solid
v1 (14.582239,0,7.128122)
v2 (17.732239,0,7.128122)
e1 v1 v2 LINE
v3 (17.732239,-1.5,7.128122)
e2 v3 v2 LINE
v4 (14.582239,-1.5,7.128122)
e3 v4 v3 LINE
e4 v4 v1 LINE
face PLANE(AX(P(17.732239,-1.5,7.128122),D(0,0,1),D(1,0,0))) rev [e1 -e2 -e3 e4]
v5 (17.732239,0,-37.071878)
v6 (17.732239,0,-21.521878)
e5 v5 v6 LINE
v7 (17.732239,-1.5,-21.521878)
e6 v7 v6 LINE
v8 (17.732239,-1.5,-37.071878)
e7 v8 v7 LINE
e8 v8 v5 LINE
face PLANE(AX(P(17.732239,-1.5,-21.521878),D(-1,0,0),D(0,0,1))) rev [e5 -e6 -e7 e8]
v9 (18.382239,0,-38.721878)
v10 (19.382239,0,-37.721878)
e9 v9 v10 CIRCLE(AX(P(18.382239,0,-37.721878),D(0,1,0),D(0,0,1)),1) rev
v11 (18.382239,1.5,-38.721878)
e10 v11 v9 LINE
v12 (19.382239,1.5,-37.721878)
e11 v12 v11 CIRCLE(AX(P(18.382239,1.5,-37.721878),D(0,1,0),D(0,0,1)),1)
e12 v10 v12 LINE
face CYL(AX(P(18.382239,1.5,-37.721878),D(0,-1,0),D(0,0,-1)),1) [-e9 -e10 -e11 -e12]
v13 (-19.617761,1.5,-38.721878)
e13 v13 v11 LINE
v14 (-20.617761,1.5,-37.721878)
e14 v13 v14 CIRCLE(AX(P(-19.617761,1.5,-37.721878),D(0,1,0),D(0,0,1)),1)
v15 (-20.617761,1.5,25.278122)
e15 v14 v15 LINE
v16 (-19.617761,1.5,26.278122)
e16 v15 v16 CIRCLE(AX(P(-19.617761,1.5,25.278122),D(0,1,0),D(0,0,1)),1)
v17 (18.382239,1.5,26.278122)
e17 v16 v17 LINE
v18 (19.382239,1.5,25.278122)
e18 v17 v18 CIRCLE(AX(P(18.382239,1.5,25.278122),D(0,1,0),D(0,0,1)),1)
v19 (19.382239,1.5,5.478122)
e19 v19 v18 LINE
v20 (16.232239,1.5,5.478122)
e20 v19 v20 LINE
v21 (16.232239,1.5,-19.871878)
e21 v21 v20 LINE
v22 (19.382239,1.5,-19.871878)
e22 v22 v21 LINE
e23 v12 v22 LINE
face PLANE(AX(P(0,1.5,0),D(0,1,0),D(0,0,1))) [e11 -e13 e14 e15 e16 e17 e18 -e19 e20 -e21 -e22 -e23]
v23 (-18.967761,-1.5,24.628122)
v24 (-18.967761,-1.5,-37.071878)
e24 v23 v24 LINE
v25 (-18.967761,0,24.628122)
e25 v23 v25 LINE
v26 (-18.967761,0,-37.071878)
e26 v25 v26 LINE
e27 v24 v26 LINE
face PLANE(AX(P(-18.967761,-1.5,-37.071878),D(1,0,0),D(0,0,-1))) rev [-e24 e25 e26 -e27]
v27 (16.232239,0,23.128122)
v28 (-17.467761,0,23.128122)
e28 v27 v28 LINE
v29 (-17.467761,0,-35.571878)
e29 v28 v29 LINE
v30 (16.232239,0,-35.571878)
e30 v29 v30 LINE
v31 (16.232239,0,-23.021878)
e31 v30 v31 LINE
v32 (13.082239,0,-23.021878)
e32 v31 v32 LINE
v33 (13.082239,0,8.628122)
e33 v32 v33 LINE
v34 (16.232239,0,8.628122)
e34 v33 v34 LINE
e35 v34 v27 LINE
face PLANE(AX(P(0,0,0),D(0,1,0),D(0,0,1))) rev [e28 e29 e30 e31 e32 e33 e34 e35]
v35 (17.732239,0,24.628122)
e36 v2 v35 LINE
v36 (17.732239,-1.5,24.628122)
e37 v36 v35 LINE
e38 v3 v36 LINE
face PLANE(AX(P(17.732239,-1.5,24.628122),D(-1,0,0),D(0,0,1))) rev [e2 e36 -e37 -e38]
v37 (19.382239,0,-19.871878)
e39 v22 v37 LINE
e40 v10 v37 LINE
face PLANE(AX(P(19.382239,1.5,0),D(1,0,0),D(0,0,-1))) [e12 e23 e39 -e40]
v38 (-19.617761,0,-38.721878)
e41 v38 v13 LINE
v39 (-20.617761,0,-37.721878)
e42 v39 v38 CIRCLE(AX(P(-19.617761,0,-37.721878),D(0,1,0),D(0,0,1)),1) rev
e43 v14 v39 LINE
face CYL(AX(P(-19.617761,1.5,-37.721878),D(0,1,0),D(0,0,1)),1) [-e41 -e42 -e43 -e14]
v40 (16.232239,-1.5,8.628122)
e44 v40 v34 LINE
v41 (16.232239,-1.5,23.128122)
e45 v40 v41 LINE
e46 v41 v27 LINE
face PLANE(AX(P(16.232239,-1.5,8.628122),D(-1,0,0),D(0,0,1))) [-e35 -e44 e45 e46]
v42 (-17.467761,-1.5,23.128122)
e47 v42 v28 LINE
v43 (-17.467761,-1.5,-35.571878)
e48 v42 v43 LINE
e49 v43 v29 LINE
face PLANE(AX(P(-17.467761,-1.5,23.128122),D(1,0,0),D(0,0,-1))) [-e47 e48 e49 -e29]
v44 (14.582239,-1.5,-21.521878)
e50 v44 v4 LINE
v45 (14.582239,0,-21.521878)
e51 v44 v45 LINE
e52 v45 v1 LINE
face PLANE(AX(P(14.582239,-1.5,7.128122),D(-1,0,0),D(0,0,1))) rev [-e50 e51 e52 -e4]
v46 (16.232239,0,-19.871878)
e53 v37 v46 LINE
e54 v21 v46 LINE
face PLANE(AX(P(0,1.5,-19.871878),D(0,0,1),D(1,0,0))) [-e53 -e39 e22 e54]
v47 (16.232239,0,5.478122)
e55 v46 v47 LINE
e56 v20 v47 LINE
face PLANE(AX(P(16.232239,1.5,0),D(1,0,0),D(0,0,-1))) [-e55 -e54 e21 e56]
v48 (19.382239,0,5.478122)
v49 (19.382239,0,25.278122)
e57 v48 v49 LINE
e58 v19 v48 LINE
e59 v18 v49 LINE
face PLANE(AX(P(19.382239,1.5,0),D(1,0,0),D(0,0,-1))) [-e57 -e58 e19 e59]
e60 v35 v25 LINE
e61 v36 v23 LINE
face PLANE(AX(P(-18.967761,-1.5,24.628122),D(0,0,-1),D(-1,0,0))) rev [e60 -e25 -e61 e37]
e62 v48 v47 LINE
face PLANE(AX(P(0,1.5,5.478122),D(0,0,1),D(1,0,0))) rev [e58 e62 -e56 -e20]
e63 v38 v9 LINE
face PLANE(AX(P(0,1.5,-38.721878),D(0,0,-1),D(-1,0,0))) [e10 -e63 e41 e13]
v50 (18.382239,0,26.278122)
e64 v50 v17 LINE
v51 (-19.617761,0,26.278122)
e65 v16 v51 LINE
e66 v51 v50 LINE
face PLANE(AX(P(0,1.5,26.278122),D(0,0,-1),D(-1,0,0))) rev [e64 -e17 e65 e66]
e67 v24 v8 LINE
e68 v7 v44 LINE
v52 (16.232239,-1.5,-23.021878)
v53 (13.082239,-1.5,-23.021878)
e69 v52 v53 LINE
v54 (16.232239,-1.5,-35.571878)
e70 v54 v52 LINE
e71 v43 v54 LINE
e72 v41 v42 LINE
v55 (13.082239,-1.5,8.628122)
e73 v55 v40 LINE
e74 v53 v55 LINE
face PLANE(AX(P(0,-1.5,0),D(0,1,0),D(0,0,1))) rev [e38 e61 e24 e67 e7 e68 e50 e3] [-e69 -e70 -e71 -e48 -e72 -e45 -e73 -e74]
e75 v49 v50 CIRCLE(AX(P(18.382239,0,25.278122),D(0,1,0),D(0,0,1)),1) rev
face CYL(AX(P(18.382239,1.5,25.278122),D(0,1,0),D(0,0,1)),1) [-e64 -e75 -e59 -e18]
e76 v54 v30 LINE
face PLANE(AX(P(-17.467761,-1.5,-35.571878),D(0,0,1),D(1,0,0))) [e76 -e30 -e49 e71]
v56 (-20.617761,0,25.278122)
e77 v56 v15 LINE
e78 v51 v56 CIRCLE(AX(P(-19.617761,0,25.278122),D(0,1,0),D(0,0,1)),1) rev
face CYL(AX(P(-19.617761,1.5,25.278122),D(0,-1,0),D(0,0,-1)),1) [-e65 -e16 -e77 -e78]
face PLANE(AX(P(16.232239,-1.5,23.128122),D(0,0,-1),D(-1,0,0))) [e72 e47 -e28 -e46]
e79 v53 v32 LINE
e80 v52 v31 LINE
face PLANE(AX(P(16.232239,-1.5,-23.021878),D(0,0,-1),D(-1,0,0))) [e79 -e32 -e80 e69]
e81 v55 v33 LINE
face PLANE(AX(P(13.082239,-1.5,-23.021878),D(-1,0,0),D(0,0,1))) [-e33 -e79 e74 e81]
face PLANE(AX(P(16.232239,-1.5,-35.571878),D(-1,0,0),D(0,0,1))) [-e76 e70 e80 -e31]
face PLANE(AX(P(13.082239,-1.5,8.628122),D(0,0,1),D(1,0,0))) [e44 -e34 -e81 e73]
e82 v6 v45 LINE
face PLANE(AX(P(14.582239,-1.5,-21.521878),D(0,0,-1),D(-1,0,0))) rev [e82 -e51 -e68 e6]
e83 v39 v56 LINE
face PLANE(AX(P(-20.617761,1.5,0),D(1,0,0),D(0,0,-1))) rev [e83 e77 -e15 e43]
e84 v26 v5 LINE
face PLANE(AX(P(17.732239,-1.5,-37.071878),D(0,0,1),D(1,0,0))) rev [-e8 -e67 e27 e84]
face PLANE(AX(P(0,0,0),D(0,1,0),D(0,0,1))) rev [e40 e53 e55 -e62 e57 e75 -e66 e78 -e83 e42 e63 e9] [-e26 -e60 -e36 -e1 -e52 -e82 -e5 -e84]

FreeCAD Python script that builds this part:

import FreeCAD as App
import Part
import Sketcher
from FreeCAD import Vector
Q = App.Units.Quantity


def edges_at(feature, points):
    """Names of the edges that pass closest to the given points."""
    edges = feature.Shape.Edges
    near = lambda p: min(range(len(edges)), key=lambda i: edges[i].distToShape(Part.Vertex(*p))[0])
    return sorted({f"Edge{near(p) + 1}" for p in points})


def add_polygon(sketch, points):
    """Adds a closed chain of lines whose ends are joined by coincident constraints."""
    first, n = sketch.GeometryCount, len(points)
    for a, b in zip(points, points[1:] + points[:1]):
        sketch.addGeometry(Part.LineSegment(App.Vector(*a, 0), App.Vector(*b, 0)), False)
    for i in range(n):
        sketch.addConstraint(Sketcher.Constraint("Coincident", first + i, 2, first + (i + 1) % n, 1))

doc = App.newDocument("Part")
body = doc.addObject("PartDesign::Body", "Body")

# Sketch on XZ plane
sketch1 = doc.addObject("Sketcher::SketchObject", "Sketch")
body.addObject(sketch1)
sketch1.AttachmentSupport = (doc.XZ_Plane, [""])
sketch1.MapMode = "FlatFace"
add_polygon(sketch1, [(19.4, -38.7), (-20.6, -38.7), (-20.6, 26.3), (19.4, 26.3), (19.4, 5.5), (16.2, 5.5), (16.2, -19.9), (19.4, -19.9)])  # lines 0-7
sketch1.addConstraint([
    Sketcher.Constraint("Horizontal", 0),
    Sketcher.Constraint("Vertical", 1),
    Sketcher.Constraint("Horizontal", 2),
    Sketcher.Constraint("Vertical", 3),
    Sketcher.Constraint("Horizontal", 4),
    Sketcher.Constraint("Vertical", 5),
    Sketcher.Constraint("Horizontal", 6),
    Sketcher.Constraint("Vertical", 7),
    Sketcher.Constraint("Vertical", 3, 2, 6, 2),
    Sketcher.Constraint("DistanceX", 0, 2, 0, 1, Q("40 mm")),
    Sketcher.Constraint("DistanceY", 1, 1, 1, 2, Q("65 mm")),
    Sketcher.Constraint("DistanceY", 3, 2, 3, 1, Q("20.8 mm")),
    Sketcher.Constraint("DistanceX", 4, 2, 4, 1, Q("3.15 mm")),
    Sketcher.Constraint("DistanceY", 5, 2, 5, 1, Q("25.35 mm")),
    Sketcher.Constraint("DistanceX", 0, 2, -1, 1, Q("20.617761 mm")),
    Sketcher.Constraint("DistanceY", 0, 2, -1, 1, Q("38.721878 mm")),
])
pad1 = doc.addObject("PartDesign::Pad", "Pad")
body.addObject(pad1)
pad1.Profile = sketch1
pad1.Length = 1.5
pad1.Reversed = True

# Sketch on XZ plane
sketch2 = doc.addObject("Sketcher::SketchObject", "Sketch001")
body.addObject(sketch2)
sketch2.AttachmentSupport = (doc.XZ_Plane, [""])
sketch2.MapMode = "FlatFace"
add_polygon(sketch2, [(17.7, 24.6), (-19, 24.6), (-19, -37.1), (17.7, -37.1), (17.7, -21.5), (14.6, -21.5), (14.6, 7.1), (17.7, 7.1)])  # lines 0-7
add_polygon(sketch2, [(-17.5, 23.1), (16.2, 23.1), (16.2, 8.6), (13.1, 8.6), (13.1, -23), (16.2, -23), (16.2, -35.6), (-17.5, -35.6)])  # lines 8-15
sketch2.addConstraint([
    Sketcher.Constraint("Horizontal", 0),
    Sketcher.Constraint("Vertical", 1),
    Sketcher.Constraint("Horizontal", 2),
    Sketcher.Constraint("Vertical", 3),
    Sketcher.Constraint("Horizontal", 4),
    Sketcher.Constraint("Vertical", 5),
    Sketcher.Constraint("Horizontal", 6),
    Sketcher.Constraint("Vertical", 7),
    Sketcher.Constraint("Horizontal", 8),
    Sketcher.Constraint("Vertical", 9),
    Sketcher.Constraint("Horizontal", 10),
    Sketcher.Constraint("Vertical", 11),
    Sketcher.Constraint("Horizontal", 12),
    Sketcher.Constraint("Vertical", 13),
    Sketcher.Constraint("Horizontal", 14),
    Sketcher.Constraint("Vertical", 15),
    Sketcher.Constraint("Vertical", 3, 2, 6, 2),
    Sketcher.Constraint("Vertical", 9, 2, 12, 2),
    Sketcher.Constraint("Equal", 6, 10),
    Sketcher.Constraint("DistanceX", 0, 2, 0, 1, Q("36.7 mm")),
    Sketcher.Constraint("DistanceX", 8, 1, 8, 2, Q("33.7 mm")),
    Sketcher.Constraint("DistanceY", 1, 2, 1, 1, Q("61.7 mm")),
    Sketcher.Constraint("DistanceY", 7, 1, 7, 2, Q("17.5 mm")),
    Sketcher.Constraint("DistanceY", 9, 2, 9, 1, Q("14.5 mm")),
    Sketcher.Constraint("DistanceY", 15, 1, 15, 2, Q("58.7 mm")),
    Sketcher.Constraint("DistanceY", 6, 2, 8, 2, Q("16 mm")),
    Sketcher.Constraint("DistanceX", 4, 2, 4, 1, Q("3.15 mm")),
    Sketcher.Constraint("DistanceY", 3, 1, 3, 2, Q("15.55 mm")),
    Sketcher.Constraint("DistanceY", 11, 2, 11, 1, Q("31.65 mm")),
    Sketcher.Constraint("DistanceX", 8, 2, 7, 2, Q("1.5 mm")),
    Sketcher.Constraint("DistanceX", 0, 2, -1, 1, Q("18.967761 mm")),
    Sketcher.Constraint("DistanceY", -1, 1, 0, 2, Q("24.628122 mm")),
])
pad2 = doc.addObject("PartDesign::Pad", "Pad001")
body.addObject(pad2)
pad2.Profile = sketch2
pad2.Length = 1.5
doc.recompute()

fillet = doc.addObject("PartDesign::Fillet", "Fillet")
body.addObject(fillet)
fillet.Base = (pad2, edges_at(pad2, [
    (19.382, 0.75, 26.278),
    (-20.618, 0.75, 26.278),
    (-20.618, 0.75, -38.722),
    (19.382, 0.75, -38.722),
]))
fillet.Radius = 1

doc.recompute()
